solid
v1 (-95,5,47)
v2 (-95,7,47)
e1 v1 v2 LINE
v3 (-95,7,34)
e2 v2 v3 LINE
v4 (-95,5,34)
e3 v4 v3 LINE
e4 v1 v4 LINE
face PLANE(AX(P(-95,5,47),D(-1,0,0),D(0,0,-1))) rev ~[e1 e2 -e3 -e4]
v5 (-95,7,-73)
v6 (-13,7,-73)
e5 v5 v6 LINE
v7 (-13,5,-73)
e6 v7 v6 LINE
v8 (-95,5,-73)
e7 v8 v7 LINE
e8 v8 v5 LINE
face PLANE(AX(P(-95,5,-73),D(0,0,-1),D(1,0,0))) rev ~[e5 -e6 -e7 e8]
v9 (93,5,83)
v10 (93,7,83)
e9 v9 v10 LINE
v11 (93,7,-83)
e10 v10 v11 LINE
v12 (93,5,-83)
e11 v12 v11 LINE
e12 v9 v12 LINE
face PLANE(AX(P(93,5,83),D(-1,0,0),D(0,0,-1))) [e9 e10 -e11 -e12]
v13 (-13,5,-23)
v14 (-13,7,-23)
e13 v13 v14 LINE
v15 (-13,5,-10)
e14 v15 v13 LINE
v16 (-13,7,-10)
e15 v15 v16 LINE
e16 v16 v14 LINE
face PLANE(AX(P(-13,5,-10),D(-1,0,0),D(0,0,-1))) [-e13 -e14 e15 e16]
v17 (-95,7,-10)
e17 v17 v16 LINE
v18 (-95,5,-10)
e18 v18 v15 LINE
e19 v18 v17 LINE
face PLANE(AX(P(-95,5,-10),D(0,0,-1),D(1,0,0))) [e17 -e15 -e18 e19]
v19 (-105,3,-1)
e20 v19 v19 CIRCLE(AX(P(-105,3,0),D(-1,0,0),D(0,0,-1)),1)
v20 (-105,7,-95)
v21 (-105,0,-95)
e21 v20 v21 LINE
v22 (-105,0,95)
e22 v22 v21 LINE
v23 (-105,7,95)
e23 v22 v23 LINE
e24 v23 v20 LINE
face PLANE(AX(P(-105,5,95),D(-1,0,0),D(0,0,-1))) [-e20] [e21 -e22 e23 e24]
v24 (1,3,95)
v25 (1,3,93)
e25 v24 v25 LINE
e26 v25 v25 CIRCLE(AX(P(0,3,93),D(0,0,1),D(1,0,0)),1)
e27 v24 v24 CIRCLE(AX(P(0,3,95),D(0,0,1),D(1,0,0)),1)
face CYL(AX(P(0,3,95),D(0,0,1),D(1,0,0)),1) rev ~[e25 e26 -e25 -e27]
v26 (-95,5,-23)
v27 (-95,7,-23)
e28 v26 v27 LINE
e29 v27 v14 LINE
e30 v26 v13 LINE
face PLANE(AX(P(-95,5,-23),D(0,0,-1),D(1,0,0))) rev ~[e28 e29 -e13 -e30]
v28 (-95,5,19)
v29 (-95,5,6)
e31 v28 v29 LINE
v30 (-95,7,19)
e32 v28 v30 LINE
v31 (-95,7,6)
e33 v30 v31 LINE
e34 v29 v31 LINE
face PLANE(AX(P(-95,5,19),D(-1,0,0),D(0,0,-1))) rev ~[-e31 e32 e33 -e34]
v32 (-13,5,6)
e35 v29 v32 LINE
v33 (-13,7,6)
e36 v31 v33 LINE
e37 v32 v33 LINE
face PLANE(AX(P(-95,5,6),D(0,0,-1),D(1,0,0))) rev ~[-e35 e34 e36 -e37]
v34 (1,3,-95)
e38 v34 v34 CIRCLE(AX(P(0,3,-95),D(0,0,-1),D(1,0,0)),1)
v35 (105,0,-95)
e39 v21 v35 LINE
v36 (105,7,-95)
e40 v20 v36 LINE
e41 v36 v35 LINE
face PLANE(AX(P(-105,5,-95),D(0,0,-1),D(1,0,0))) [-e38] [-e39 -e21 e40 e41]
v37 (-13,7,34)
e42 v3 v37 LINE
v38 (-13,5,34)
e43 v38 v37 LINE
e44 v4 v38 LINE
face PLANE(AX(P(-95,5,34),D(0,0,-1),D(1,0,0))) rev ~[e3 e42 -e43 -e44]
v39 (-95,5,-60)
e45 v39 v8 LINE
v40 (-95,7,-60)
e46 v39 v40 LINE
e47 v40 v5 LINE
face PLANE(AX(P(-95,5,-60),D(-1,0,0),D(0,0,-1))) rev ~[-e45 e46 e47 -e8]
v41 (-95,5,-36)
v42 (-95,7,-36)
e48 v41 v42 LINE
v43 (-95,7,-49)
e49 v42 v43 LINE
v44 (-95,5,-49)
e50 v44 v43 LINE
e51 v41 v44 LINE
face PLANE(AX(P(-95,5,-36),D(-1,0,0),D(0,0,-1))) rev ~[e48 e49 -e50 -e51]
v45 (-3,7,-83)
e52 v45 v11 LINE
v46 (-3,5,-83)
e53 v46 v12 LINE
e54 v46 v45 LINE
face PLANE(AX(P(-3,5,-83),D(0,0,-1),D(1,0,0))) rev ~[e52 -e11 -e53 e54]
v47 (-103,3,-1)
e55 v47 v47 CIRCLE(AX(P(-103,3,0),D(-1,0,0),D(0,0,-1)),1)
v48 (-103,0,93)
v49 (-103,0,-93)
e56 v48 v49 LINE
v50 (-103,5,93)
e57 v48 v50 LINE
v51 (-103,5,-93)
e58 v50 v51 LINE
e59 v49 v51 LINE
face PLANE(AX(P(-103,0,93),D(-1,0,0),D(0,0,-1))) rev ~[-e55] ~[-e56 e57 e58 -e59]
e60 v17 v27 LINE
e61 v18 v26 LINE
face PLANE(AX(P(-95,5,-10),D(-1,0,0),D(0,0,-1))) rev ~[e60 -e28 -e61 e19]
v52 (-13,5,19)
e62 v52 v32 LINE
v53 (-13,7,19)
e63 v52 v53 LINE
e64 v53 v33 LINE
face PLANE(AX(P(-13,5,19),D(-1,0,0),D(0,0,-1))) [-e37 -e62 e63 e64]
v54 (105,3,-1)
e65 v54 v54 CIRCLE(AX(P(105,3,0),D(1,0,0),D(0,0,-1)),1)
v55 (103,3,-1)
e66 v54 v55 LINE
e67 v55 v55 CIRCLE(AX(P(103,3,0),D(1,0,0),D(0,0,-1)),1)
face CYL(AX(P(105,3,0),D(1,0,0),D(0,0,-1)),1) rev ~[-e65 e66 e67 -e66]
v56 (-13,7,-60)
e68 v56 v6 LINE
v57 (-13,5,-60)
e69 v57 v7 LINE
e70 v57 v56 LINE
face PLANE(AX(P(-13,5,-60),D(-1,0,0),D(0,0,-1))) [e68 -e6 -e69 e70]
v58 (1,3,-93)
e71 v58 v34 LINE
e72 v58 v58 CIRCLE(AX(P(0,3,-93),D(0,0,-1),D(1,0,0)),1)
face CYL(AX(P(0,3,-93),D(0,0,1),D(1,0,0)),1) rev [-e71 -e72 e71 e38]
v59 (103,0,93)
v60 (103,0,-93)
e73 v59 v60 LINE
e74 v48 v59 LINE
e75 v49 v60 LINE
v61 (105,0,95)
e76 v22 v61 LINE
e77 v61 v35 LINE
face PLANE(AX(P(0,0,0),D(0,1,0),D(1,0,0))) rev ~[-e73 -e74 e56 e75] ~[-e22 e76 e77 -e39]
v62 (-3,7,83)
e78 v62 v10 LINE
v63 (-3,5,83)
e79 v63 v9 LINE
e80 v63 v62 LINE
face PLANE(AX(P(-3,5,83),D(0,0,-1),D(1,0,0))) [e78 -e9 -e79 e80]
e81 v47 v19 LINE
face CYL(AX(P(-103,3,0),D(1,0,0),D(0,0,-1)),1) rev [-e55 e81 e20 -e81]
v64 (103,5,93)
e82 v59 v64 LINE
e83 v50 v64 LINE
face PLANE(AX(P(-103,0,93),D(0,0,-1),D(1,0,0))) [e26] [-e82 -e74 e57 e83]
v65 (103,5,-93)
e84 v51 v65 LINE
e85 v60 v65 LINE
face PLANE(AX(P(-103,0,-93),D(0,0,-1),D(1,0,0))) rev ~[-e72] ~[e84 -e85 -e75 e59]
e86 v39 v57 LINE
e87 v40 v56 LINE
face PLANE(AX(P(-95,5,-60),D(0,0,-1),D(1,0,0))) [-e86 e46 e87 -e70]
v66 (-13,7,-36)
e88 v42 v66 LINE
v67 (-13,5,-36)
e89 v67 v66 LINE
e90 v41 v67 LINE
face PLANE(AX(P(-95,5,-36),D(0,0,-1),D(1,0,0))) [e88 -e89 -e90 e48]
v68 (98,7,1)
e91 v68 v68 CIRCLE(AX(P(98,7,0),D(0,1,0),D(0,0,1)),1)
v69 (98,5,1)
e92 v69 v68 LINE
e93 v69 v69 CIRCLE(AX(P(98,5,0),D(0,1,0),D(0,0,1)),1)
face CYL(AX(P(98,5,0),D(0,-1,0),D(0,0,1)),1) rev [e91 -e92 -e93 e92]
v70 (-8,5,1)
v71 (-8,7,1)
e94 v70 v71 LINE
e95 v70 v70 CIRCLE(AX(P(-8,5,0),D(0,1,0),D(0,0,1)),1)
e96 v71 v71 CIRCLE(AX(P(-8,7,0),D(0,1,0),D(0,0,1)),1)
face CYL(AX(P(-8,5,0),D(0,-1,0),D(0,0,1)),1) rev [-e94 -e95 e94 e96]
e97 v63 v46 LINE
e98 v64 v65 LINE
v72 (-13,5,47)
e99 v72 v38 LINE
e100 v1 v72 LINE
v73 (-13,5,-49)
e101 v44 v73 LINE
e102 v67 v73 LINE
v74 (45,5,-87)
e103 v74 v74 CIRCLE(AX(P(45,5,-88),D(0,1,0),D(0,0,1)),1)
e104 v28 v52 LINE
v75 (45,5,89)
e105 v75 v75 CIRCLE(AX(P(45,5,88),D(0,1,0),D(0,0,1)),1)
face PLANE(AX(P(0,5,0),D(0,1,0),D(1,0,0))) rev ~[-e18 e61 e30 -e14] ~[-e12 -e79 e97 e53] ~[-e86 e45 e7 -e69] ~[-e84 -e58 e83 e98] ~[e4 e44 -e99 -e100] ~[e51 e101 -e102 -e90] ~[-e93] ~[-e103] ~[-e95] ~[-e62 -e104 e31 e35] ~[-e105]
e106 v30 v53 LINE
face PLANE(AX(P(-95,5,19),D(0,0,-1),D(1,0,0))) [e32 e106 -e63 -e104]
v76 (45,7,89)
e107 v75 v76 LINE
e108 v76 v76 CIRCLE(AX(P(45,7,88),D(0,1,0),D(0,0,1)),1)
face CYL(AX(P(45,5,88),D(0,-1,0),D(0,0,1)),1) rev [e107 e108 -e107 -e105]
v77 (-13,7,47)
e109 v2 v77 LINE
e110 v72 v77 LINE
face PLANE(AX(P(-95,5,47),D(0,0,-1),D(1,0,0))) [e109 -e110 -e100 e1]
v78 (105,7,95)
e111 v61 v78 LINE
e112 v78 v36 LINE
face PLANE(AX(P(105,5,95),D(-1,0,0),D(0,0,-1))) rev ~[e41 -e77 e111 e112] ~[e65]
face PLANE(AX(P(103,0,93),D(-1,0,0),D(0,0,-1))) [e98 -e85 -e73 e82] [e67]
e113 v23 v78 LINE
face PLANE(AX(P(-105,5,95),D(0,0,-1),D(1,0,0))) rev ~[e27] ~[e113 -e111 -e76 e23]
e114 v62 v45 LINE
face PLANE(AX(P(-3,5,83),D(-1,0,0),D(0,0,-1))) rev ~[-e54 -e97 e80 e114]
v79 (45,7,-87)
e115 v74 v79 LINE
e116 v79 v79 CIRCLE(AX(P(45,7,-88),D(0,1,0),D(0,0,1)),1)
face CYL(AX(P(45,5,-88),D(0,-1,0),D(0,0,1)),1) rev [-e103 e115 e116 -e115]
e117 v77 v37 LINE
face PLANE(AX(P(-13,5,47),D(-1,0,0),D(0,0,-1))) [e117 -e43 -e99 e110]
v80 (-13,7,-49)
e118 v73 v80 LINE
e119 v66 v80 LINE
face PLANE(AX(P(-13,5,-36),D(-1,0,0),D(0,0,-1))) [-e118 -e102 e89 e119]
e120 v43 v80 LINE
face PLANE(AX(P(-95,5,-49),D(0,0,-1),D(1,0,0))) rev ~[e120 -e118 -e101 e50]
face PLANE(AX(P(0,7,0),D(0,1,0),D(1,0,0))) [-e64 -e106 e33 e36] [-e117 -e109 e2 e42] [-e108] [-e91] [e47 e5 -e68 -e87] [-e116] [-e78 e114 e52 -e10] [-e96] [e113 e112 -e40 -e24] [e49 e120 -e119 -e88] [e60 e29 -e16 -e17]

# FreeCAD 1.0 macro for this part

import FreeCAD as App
import Part
import Sketcher
Q = App.Units.Quantity


def add_polygon(sketch, points):
    """Adds a closed chain of lines whose ends are joined by coincident constraints."""
    first, n = sketch.GeometryCount, len(points)
    for a, b in zip(points, points[1:] + points[:1]):
        sketch.addGeometry(Part.LineSegment(App.Vector(*a, 0), App.Vector(*b, 0)), False)
    for i in range(n):
        sketch.addConstraint(Sketcher.Constraint("Coincident", first + i, 2, first + (i + 1) % n, 1))

doc = App.newDocument("Part")
body = doc.addObject("PartDesign::Body", "Body")

# Sketch on XZ plane
sketch1 = body.newObject("Sketcher::SketchObject", "Sketch")
sketch1.AttachmentSupport = (doc.getObject("XZ_Plane"), [""])
sketch1.MapMode = "FlatFace"
add_polygon(sketch1, [(-105, -95), (-105, 95), (105, 95), (105, -95)])  # lines 0-3
add_polygon(sketch1, [(103, 93), (-103, 93), (-103, -93), (103, -93)])  # lines 4-7
sketch1.addConstraint([
    Sketcher.Constraint("Vertical", 0),
    Sketcher.Constraint("Horizontal", 1),
    Sketcher.Constraint("Vertical", 2),
    Sketcher.Constraint("Horizontal", 3),
    Sketcher.Constraint("Horizontal", 4),
    Sketcher.Constraint("Vertical", 5),
    Sketcher.Constraint("Horizontal", 6),
    Sketcher.Constraint("Vertical", 7),
    Sketcher.Constraint("Symmetric", 0, 2, 2, 2, -1, 1),
    Sketcher.Constraint("Symmetric", 4, 2, 6, 2, -1, 1),
    Sketcher.Constraint("DistanceX", 1, 1, 1, 2, Q("210 mm")),
    Sketcher.Constraint("DistanceX", 4, 2, 4, 1, Q("206 mm")),
    Sketcher.Constraint("DistanceY", 0, 1, 0, 2, Q("190 mm")),
    Sketcher.Constraint("DistanceY", 5, 2, 5, 1, Q("186 mm")),
])
pad1 = body.newObject("PartDesign::Pad", "Pad")
pad1.Profile = sketch1
pad1.Length = 5
pad1.Reversed = True

# Sketch on YZ plane
sketch2 = body.newObject("Sketcher::SketchObject", "Sketch001")
sketch2.AttachmentSupport = (doc.getObject("YZ_Plane"), [""])
sketch2.MapMode = "FlatFace"
sketch2.AttachmentOffset = App.Placement(App.Vector(0, 0, 105), App.Rotation())
sketch2.addGeometry(Part.Circle(App.Vector(3, 0, 0), App.Vector(0, 0, 1), 1), False)
sketch2.addConstraint([
    Sketcher.Constraint("PointOnObject", 0, 3, -1),
    Sketcher.Constraint("Diameter", 0, Q("2 mm")),
    Sketcher.Constraint("DistanceX", -1, 1, 0, 3, Q("3 mm")),
])
pocket1 = body.newObject("PartDesign::Pocket", "Pocket")
pocket1.Profile = sketch2
pocket1.Length = 2

# Sketch on XY plane
sketch3 = body.newObject("Sketcher::SketchObject", "Sketch002")
sketch3.AttachmentSupport = (doc.getObject("XY_Plane"), [""])
sketch3.MapMode = "FlatFace"
sketch3.AttachmentOffset = App.Placement(App.Vector(0, 0, 95), App.Rotation())
sketch3.addGeometry(Part.Circle(App.Vector(0, 3, 0), App.Vector(0, 0, 1), 1), False)
sketch3.addConstraint([
    Sketcher.Constraint("PointOnObject", 0, 3, -2),
    Sketcher.Constraint("Diameter", 0, Q("2 mm")),
    Sketcher.Constraint("DistanceY", -1, 1, 0, 3, Q("3 mm")),
])
pocket2 = body.newObject("PartDesign::Pocket", "Pocket001")
pocket2.Profile = sketch3
pocket2.Length = 2

# Sketch on XY plane
sketch4 = body.newObject("Sketcher::SketchObject", "Sketch003")
sketch4.AttachmentSupport = (doc.getObject("XY_Plane"), [""])
sketch4.MapMode = "FlatFace"
sketch4.AttachmentOffset = App.Placement(App.Vector(0, 0, -93), App.Rotation())
sketch4.addGeometry(Part.Circle(App.Vector(0, 3, 0), App.Vector(0, 0, 1), 1), False)
sketch4.addConstraint([
    Sketcher.Constraint("PointOnObject", 0, 3, -2),
    Sketcher.Constraint("Diameter", 0, Q("2 mm")),
    Sketcher.Constraint("DistanceY", -1, 1, 0, 3, Q("3 mm")),
])
pocket3 = body.newObject("PartDesign::Pocket", "Pocket002")
pocket3.Profile = sketch4
pocket3.Length = 2

# Sketch on YZ plane
sketch5 = body.newObject("Sketcher::SketchObject", "Sketch004")
sketch5.AttachmentSupport = (doc.getObject("YZ_Plane"), [""])
sketch5.MapMode = "FlatFace"
sketch5.AttachmentOffset = App.Placement(App.Vector(0, 0, -103), App.Rotation())
sketch5.addGeometry(Part.Circle(App.Vector(3, 0, 0), App.Vector(0, 0, 1), 1), False)
sketch5.addConstraint([
    Sketcher.Constraint("PointOnObject", 0, 3, -1),
    Sketcher.Constraint("Diameter", 0, Q("2 mm")),
    Sketcher.Constraint("DistanceX", -1, 1, 0, 3, Q("3 mm")),
])
pocket4 = body.newObject("PartDesign::Pocket", "Pocket003")
pocket4.Profile = sketch5
pocket4.Length = 2

# Sketch on XZ plane
sketch6 = body.newObject("Sketcher::SketchObject", "Sketch005")
sketch6.AttachmentSupport = (doc.getObject("XZ_Plane"), [""])
sketch6.MapMode = "FlatFace"
sketch6.AttachmentOffset = App.Placement(App.Vector(0, 0, -5), App.Rotation())
add_polygon(sketch6, [(-105, -95), (-105, 95), (105, 95), (105, -95)])  # lines 0-3
add_polygon(sketch6, [(-13, 47), (-95, 47), (-95, 34), (-13, 34)])  # lines 4-7
add_polygon(sketch6, [(-13, 19), (-95, 19), (-95, 6), (-13, 6)])  # lines 8-11
sketch6.addGeometry(Part.Circle(App.Vector(45, 88, 0), App.Vector(0, 0, 1), 1), False)  # 12
add_polygon(sketch6, [(-13, -10), (-95, -10), (-95, -23), (-13, -23)])  # lines 13-16
add_polygon(sketch6, [(-13, -36), (-95, -36), (-95, -49), (-13, -49)])  # lines 17-20
sketch6.addGeometry(Part.Circle(App.Vector(-8, 0, 0), App.Vector(0, 0, 1), 1), False)  # 21
add_polygon(sketch6, [(-13, -60), (-95, -60), (-95, -73), (-13, -73)])  # lines 22-25
add_polygon(sketch6, [(93, 83), (-3, 83), (-3, -83), (93, -83)])  # lines 26-29
sketch6.addGeometry(Part.Circle(App.Vector(98, 0, 0), App.Vector(0, 0, 1), 1), False)  # 30
sketch6.addGeometry(Part.Circle(App.Vector(45, -88, 0), App.Vector(0, 0, 1), 1), False)  # 31
sketch6.addConstraint([
    Sketcher.Constraint("Vertical", 0),
    Sketcher.Constraint("Horizontal", 1),
    Sketcher.Constraint("Vertical", 2),
    Sketcher.Constraint("Horizontal", 3),
    Sketcher.Constraint("Horizontal", 4),
    Sketcher.Constraint("Vertical", 5),
    Sketcher.Constraint("Horizontal", 6),
    Sketcher.Constraint("Vertical", 7),
    Sketcher.Constraint("Horizontal", 8),
    Sketcher.Constraint("Vertical", 9),
    Sketcher.Constraint("Horizontal", 10),
    Sketcher.Constraint("Vertical", 11),
    Sketcher.Constraint("Horizontal", 13),
    Sketcher.Constraint("Vertical", 14),
    Sketcher.Constraint("Horizontal", 15),
    Sketcher.Constraint("Vertical", 16),
    Sketcher.Constraint("Horizontal", 17),
    Sketcher.Constraint("Vertical", 18),
    Sketcher.Constraint("Horizontal", 19),
    Sketcher.Constraint("Vertical", 20),
    Sketcher.Constraint("Horizontal", 22),
    Sketcher.Constraint("Vertical", 23),
    Sketcher.Constraint("Horizontal", 24),
    Sketcher.Constraint("Vertical", 25),
    Sketcher.Constraint("Horizontal", 26),
    Sketcher.Constraint("Vertical", 27),
    Sketcher.Constraint("Horizontal", 28),
    Sketcher.Constraint("Vertical", 29),
    Sketcher.Constraint("Equal", 12, 21),
    Sketcher.Constraint("Equal", 21, 30),
    Sketcher.Constraint("Equal", 30, 31),
    Sketcher.Constraint("Symmetric", 0, 2, 2, 2, -1, 1),
    Sketcher.Constraint("Symmetric", 12, 3, 31, 3, -1),
    Sketcher.Constraint("PointOnObject", 21, 3, -1),
    Sketcher.Constraint("PointOnObject", 30, 3, -1),
    Sketcher.Constraint("Vertical", 5, 2, 8, 2),
    Sketcher.Constraint("Vertical", 7, 2, 10, 2),
    Sketcher.Constraint("Vertical", 9, 2, 13, 2),
    Sketcher.Constraint("Vertical", 11, 2, 15, 2),
    Sketcher.Constraint("Vertical", 14, 2, 17, 2),
    Sketcher.Constraint("Vertical", 16, 2, 19, 2),
    Sketcher.Constraint("Vertical", 18, 2, 22, 2),
    Sketcher.Constraint("Vertical", 20, 2, 24, 2),
    Sketcher.Constraint("Equal", 7, 9),
    Sketcher.Constraint("Equal", 11, 14),
    Sketcher.Constraint("Equal", 16, 18),
    Sketcher.Constraint("Equal", 20, 23),
    Sketcher.Constraint("Diameter", 12, Q("2 mm")),
    Sketcher.Constraint("DistanceX", 1, 1, 1, 2, Q("210 mm")),
    Sketcher.Constraint("DistanceX", 4, 2, 4, 1, Q("82 mm")),
    Sketcher.Constraint("DistanceX", 26, 2, 26, 1, Q("96 mm")),
    Sketcher.Constraint("DistanceY", 0, 1, 0, 2, Q("190 mm")),
    Sketcher.Constraint("DistanceY", 5, 2, 5, 1, Q("13 mm")),
    Sketcher.Constraint("DistanceY", 27, 2, 27, 1, Q("166 mm")),
    Sketcher.Constraint("DistanceX", -1, 1, 12, 3, Q("45 mm")),
    Sketcher.Constraint("DistanceY", -1, 1, 12, 3, Q("88 mm")),
    Sketcher.Constraint("DistanceX", 21, 3, -1, 1, Q("8 mm")),
    Sketcher.Constraint("DistanceX", -1, 1, 30, 3, Q("98 mm")),
    Sketcher.Constraint("DistanceX", 4, 2, -1, 1, Q("95 mm")),
    Sketcher.Constraint("DistanceY", -1, 1, 4, 2, Q("47 mm")),
    Sketcher.Constraint("DistanceY", -1, 1, 8, 2, Q("19 mm")),
    Sketcher.Constraint("DistanceY", 13, 2, -1, 1, Q("10 mm")),
    Sketcher.Constraint("DistanceY", 17, 2, -1, 1, Q("36 mm")),
    Sketcher.Constraint("DistanceY", 22, 2, -1, 1, Q("60 mm")),
    Sketcher.Constraint("DistanceX", 26, 2, -1, 1, Q("3 mm")),
    Sketcher.Constraint("DistanceY", -1, 1, 26, 2, Q("83 mm")),
])
pad2 = body.newObject("PartDesign::Pad", "Pad001")
pad2.Profile = sketch6
pad2.Length = 2
pad2.Reversed = True

doc.recompute()
